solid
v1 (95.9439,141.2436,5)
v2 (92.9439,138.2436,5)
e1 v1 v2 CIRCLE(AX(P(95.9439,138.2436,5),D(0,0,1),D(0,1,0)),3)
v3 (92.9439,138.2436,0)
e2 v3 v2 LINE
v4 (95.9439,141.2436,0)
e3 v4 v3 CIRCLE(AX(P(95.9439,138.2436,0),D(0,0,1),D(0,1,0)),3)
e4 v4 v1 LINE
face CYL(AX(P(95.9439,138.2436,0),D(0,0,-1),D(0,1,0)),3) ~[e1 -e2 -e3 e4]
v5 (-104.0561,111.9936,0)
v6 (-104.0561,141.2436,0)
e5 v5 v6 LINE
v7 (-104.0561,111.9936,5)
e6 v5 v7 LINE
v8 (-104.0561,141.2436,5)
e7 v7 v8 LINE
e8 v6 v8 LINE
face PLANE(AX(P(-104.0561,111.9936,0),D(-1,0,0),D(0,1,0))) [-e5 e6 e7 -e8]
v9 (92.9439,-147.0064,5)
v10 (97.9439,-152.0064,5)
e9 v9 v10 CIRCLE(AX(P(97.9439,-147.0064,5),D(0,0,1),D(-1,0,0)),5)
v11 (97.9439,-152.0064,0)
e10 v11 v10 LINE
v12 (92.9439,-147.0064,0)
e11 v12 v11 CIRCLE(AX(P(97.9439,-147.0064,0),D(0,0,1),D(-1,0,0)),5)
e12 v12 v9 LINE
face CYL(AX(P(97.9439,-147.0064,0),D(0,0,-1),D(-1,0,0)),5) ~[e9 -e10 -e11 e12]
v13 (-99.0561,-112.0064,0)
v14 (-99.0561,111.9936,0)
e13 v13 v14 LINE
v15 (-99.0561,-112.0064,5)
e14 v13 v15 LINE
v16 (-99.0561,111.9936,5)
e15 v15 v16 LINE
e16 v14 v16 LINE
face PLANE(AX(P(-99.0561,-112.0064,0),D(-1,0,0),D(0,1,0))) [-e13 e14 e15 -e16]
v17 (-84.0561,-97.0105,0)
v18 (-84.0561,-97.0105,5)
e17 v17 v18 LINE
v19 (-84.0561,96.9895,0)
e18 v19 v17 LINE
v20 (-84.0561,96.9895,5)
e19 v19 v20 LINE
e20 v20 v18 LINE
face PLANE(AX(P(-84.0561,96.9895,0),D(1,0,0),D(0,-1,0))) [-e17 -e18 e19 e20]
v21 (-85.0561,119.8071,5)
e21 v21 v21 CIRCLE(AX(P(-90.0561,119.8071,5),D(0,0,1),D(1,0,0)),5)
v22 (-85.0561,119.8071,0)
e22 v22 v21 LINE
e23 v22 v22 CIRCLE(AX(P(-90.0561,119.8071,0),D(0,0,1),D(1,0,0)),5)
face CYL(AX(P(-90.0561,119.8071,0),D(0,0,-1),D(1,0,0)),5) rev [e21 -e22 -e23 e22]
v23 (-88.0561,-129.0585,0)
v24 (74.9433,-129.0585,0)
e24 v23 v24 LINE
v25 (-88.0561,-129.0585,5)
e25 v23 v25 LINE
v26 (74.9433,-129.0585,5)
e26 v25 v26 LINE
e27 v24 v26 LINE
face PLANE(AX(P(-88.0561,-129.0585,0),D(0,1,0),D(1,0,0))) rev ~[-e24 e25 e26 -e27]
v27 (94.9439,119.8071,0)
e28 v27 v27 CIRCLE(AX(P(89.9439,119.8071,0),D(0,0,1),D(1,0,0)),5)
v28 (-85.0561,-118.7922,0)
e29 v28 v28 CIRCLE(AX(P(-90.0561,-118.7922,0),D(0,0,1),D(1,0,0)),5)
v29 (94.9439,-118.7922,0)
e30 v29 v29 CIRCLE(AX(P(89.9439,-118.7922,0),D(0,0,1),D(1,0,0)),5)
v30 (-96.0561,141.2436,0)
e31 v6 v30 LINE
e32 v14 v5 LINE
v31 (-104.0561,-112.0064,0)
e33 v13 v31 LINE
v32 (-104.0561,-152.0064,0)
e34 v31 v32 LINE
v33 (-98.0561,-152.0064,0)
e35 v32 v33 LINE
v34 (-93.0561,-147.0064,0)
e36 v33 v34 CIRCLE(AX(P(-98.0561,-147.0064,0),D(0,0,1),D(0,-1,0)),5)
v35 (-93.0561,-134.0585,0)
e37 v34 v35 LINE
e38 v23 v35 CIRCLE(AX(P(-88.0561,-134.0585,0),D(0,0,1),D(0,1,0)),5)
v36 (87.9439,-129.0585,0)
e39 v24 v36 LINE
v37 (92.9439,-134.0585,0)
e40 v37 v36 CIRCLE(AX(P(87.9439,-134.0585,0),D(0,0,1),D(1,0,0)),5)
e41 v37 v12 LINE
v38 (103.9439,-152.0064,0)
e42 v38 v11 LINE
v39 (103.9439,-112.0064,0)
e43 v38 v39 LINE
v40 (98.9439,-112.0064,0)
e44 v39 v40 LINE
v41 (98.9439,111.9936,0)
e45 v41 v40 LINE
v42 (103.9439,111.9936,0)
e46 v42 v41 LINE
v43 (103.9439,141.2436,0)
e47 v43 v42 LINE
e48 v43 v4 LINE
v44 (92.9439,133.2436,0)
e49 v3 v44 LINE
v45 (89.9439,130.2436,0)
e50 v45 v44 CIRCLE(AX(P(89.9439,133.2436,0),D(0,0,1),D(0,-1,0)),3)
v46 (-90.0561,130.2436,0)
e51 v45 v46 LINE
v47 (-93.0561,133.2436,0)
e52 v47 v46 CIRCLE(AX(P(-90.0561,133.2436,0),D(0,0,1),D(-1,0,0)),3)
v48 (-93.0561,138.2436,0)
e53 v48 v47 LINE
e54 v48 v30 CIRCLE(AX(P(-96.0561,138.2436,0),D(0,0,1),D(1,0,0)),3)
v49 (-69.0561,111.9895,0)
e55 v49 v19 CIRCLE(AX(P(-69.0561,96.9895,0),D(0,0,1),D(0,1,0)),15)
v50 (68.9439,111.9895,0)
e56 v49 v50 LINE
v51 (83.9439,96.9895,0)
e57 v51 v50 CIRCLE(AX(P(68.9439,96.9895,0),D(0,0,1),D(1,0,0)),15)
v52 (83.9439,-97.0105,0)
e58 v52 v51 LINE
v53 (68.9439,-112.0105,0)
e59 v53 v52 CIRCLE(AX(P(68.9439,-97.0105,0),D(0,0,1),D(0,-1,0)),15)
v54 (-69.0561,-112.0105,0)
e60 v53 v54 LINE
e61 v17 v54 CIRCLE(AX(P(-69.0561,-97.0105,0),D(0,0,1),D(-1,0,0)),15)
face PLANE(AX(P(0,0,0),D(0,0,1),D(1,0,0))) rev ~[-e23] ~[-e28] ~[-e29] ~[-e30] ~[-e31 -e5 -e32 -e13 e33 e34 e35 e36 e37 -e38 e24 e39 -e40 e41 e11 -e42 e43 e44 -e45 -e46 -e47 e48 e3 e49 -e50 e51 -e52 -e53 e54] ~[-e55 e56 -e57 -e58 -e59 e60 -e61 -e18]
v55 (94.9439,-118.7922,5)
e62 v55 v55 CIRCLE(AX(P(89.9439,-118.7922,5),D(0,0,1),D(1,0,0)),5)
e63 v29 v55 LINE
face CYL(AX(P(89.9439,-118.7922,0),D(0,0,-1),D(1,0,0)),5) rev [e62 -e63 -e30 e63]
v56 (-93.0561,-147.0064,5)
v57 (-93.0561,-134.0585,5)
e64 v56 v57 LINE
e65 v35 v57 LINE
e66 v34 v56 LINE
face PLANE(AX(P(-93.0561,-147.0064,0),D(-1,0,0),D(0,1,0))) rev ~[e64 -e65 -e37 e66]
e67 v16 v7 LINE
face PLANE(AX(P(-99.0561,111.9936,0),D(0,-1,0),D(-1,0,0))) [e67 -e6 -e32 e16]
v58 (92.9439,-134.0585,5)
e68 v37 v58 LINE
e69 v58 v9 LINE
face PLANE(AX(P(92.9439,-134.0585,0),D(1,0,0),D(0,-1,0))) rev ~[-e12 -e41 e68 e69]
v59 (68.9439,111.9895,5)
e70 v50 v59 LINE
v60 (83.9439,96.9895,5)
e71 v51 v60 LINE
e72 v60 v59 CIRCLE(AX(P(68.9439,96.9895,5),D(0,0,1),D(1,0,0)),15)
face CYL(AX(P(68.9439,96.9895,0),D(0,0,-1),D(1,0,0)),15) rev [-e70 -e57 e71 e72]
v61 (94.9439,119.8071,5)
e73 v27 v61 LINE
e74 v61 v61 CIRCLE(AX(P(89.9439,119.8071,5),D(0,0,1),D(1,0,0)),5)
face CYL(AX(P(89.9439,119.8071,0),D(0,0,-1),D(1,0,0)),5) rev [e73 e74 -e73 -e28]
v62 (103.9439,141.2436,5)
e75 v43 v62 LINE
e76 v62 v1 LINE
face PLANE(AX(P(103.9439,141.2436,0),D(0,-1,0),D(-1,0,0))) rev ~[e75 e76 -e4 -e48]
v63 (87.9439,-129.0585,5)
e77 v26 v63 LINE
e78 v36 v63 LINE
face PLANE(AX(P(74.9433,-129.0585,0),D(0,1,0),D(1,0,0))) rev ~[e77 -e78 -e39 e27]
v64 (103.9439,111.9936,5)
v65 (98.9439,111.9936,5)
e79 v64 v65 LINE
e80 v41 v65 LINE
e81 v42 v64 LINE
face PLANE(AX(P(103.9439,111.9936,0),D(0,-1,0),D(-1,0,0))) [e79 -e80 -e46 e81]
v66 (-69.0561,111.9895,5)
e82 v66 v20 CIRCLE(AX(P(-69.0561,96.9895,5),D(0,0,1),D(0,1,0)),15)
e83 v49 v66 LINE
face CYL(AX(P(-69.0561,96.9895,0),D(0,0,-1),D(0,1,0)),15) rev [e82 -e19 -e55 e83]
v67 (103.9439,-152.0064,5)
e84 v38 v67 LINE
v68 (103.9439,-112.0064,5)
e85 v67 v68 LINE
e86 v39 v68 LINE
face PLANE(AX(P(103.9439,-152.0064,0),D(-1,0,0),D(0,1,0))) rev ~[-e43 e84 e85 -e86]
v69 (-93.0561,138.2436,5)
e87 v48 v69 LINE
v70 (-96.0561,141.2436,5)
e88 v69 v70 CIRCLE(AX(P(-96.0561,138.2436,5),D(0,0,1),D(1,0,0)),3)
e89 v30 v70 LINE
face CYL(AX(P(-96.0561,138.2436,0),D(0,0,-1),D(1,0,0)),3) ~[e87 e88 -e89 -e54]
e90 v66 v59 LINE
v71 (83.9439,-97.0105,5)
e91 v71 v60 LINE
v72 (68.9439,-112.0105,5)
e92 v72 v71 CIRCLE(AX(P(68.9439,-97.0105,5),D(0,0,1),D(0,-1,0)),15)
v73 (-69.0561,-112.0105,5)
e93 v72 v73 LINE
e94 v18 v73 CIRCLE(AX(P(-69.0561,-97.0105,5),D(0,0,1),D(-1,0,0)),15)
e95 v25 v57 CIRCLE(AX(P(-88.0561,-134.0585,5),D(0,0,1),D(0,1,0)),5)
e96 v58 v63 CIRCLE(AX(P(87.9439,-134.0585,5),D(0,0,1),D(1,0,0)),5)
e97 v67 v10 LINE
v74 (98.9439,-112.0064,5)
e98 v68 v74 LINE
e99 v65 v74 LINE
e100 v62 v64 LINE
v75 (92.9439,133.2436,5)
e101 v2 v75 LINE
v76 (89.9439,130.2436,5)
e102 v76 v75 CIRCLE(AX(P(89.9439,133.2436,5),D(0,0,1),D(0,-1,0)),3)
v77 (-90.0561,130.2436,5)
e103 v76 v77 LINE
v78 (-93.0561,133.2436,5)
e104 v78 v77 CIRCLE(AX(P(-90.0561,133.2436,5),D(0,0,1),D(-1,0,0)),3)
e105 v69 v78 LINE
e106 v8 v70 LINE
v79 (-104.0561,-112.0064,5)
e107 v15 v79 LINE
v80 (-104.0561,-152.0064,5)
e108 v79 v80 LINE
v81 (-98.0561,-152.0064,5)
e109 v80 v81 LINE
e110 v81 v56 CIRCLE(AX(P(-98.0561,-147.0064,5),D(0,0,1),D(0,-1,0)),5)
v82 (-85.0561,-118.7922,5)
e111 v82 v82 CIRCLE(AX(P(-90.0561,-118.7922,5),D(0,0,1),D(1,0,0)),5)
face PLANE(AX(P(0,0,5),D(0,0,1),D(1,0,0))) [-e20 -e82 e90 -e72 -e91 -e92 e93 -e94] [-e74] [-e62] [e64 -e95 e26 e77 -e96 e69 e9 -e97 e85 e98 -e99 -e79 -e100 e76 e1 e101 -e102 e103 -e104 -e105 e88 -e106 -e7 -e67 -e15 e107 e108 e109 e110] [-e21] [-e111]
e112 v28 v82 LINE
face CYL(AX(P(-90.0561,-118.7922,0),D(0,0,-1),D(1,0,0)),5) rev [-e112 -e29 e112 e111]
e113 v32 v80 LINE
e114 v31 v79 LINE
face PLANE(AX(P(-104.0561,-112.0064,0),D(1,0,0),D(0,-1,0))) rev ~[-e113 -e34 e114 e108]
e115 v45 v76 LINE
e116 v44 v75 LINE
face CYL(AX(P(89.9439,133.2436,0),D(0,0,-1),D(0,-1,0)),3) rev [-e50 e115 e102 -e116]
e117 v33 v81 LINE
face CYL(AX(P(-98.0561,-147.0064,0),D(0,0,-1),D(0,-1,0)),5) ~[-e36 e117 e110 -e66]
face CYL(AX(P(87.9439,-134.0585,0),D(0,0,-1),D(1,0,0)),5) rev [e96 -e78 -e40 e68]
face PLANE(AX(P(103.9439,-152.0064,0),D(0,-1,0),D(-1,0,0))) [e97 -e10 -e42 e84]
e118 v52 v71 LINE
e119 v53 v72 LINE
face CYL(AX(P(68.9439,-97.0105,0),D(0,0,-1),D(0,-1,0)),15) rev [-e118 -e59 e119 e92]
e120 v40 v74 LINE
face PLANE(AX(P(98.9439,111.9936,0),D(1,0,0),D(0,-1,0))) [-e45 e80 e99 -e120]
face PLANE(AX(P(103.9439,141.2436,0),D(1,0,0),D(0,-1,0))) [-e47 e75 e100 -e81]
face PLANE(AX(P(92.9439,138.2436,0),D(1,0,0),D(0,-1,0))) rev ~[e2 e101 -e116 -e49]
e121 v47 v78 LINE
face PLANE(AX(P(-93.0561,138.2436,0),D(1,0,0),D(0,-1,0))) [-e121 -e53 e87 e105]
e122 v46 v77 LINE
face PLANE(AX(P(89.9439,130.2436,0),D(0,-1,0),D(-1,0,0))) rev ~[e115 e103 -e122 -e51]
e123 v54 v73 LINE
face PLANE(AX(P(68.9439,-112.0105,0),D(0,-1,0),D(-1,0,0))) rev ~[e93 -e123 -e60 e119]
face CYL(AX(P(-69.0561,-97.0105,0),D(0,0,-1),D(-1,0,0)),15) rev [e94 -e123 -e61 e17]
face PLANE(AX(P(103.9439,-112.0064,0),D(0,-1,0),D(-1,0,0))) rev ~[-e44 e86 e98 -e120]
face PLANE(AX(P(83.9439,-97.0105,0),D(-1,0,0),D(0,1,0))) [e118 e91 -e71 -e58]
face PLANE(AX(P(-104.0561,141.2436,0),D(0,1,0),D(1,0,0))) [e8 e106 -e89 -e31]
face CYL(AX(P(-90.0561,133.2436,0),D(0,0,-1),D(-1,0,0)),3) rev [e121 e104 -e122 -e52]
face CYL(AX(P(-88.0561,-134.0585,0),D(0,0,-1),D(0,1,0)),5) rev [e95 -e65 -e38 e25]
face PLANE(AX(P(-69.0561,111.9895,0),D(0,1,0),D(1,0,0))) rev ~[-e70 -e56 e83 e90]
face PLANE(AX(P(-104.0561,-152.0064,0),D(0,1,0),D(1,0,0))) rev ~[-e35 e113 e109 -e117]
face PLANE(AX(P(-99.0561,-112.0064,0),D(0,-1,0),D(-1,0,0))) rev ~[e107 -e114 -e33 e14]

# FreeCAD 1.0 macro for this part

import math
import FreeCAD as App
import Part
import Sketcher
Q = App.Units.Quantity

doc = App.newDocument("Part")
params = doc.addObject("Spreadsheet::Sheet", "Params")
for row, (alias, value) in enumerate([
    ("sketch1_diameter", "10 mm"),
    ("sketch1_radius", "3 mm"),
    ("sketch1_radius2", "15 mm"),
    ("sketch1_width", "5 mm"),
    ("sketch1_width2", "8 mm"),
    ("pad1_length", "5 mm"),
], start=1):
    params.set(f"A{row}", alias)
    params.set(f"B{row}", "=" + value)
    params.setAlias(f"B{row}", alias)

body = doc.addObject("PartDesign::Body", "Body")

# Sketch on XY plane
sketch1 = body.newObject("Sketcher::SketchObject", "Sketch")
sketch1.AttachmentSupport = (doc.getObject("XY_Plane"), [""])
sketch1.MapMode = "FlatFace"
sketch1.addGeometry(Part.LineSegment(App.Vector(98.9, -112, 0), App.Vector(98.9, 112, 0)), False)
sketch1.addGeometry(Part.LineSegment(App.Vector(98.9, 112, 0), App.Vector(103.9, 112, 0)), False)
sketch1.addGeometry(Part.LineSegment(App.Vector(103.9, 112, 0), App.Vector(103.9, 141.2, 0)), False)
sketch1.addGeometry(Part.LineSegment(App.Vector(103.9, 141.2, 0), App.Vector(95.9, 141.2, 0)), False)
sketch1.addGeometry(Part.ArcOfCircle(Part.Circle(App.Vector(95.9, 138.2, 0), App.Vector(0, 0, 1), 3), math.radians(90), math.radians(180)), False)
sketch1.addGeometry(Part.LineSegment(App.Vector(92.9, 138.2, 0), App.Vector(92.9, 133.2, 0)), False)
sketch1.addGeometry(Part.ArcOfCircle(Part.Circle(App.Vector(89.9, 133.2, 0), App.Vector(0, 0, 1), 3), math.radians(-90), math.radians(0)), False)
sketch1.addGeometry(Part.LineSegment(App.Vector(89.9, 130.2, 0), App.Vector(-90.1, 130.2, 0)), False)
sketch1.addGeometry(Part.ArcOfCircle(Part.Circle(App.Vector(-90.1, 133.2, 0), App.Vector(0, 0, 1), 3), math.radians(180), math.radians(270)), False)
sketch1.addGeometry(Part.LineSegment(App.Vector(-93.1, 133.2, 0), App.Vector(-93.1, 138.2, 0)), False)
sketch1.addGeometry(Part.ArcOfCircle(Part.Circle(App.Vector(-96.1, 138.2, 0), App.Vector(0, 0, 1), 3), math.radians(0), math.radians(90)), False)
sketch1.addGeometry(Part.LineSegment(App.Vector(-96.1, 141.2, 0), App.Vector(-104.1, 141.2, 0)), False)
sketch1.addGeometry(Part.LineSegment(App.Vector(-104.1, 141.2, 0), App.Vector(-104.1, 112, 0)), False)
sketch1.addGeometry(Part.LineSegment(App.Vector(-104.1, 112, 0), App.Vector(-99.1, 112, 0)), False)
sketch1.addGeometry(Part.LineSegment(App.Vector(-99.1, 112, 0), App.Vector(-99.1, -112, 0)), False)
sketch1.addGeometry(Part.LineSegment(App.Vector(-99.1, -112, 0), App.Vector(-104.1, -112, 0)), False)
sketch1.addGeometry(Part.LineSegment(App.Vector(-104.1, -112, 0), App.Vector(-104.1, -152, 0)), False)
sketch1.addGeometry(Part.LineSegment(App.Vector(-104.1, -152, 0), App.Vector(-98.1, -152, 0)), False)
sketch1.addGeometry(Part.ArcOfCircle(Part.Circle(App.Vector(-98.1, -147, 0), App.Vector(0, 0, 1), 5), math.radians(-90), math.radians(0)), False)
sketch1.addGeometry(Part.LineSegment(App.Vector(-93.1, -147, 0), App.Vector(-93.1, -134.1, 0)), False)
sketch1.addGeometry(Part.ArcOfCircle(Part.Circle(App.Vector(-88.1, -134.1, 0), App.Vector(0, 0, 1), 5), math.radians(90), math.radians(180)), False)
sketch1.addGeometry(Part.LineSegment(App.Vector(-88.1, -129.1, 0), App.Vector(87.9, -129.1, 0)), False)
sketch1.addGeometry(Part.ArcOfCircle(Part.Circle(App.Vector(87.9, -134.1, 0), App.Vector(0, 0, 1), 5), math.radians(0), math.radians(90)), False)
sketch1.addGeometry(Part.LineSegment(App.Vector(92.9, -134.1, 0), App.Vector(92.9, -147, 0)), False)
sketch1.addGeometry(Part.ArcOfCircle(Part.Circle(App.Vector(97.9, -147, 0), App.Vector(0, 0, 1), 5), math.radians(180), math.radians(270)), False)
sketch1.addGeometry(Part.LineSegment(App.Vector(97.9, -152, 0), App.Vector(103.9, -152, 0)), False)
sketch1.addGeometry(Part.LineSegment(App.Vector(103.9, -152, 0), App.Vector(103.9, -112, 0)), False)
sketch1.addGeometry(Part.LineSegment(App.Vector(103.9, -112, 0), App.Vector(98.9, -112, 0)), False)
sketch1.addGeometry(Part.Circle(App.Vector(-90.1, -118.8, 0), App.Vector(0, 0, 1), 5), False)
sketch1.addGeometry(Part.Circle(App.Vector(89.9, -118.8, 0), App.Vector(0, 0, 1), 5), False)
sketch1.addGeometry(Part.Circle(App.Vector(-90.1, 119.8, 0), App.Vector(0, 0, 1), 5), False)
sketch1.addGeometry(Part.LineSegment(App.Vector(83.9, 97, 0), App.Vector(83.9, -97, 0)), False)
sketch1.addGeometry(Part.ArcOfCircle(Part.Circle(App.Vector(68.9, -97, 0), App.Vector(0, 0, 1), 15), math.radians(-90), math.radians(0)), False)
sketch1.addGeometry(Part.LineSegment(App.Vector(68.9, -112, 0), App.Vector(-69.1, -112, 0)), False)
sketch1.addGeometry(Part.ArcOfCircle(Part.Circle(App.Vector(-69.1, -97, 0), App.Vector(0, 0, 1), 15), math.radians(180), math.radians(270)), False)
sketch1.addGeometry(Part.LineSegment(App.Vector(-84.1, -97, 0), App.Vector(-84.1, 97, 0)), False)
sketch1.addGeometry(Part.ArcOfCircle(Part.Circle(App.Vector(-69.1, 97, 0), App.Vector(0, 0, 1), 15), math.radians(90), math.radians(180)), False)
sketch1.addGeometry(Part.LineSegment(App.Vector(-69.1, 112, 0), App.Vector(68.9, 112, 0)), False)
sketch1.addGeometry(Part.ArcOfCircle(Part.Circle(App.Vector(68.9, 97, 0), App.Vector(0, 0, 1), 15), math.radians(0), math.radians(90)), False)
sketch1.addGeometry(Part.Circle(App.Vector(89.9, 119.8, 0), App.Vector(0, 0, 1), 5), False)
sketch1.addConstraint(Sketcher.Constraint("Coincident", 0, 2, 1, 1))
sketch1.addConstraint(Sketcher.Constraint("Coincident", 1, 2, 2, 1))
sketch1.addConstraint(Sketcher.Constraint("Coincident", 2, 2, 3, 1))
sketch1.addConstraint(Sketcher.Constraint("Tangent", 3, 2, 4, 1))
sketch1.addConstraint(Sketcher.Constraint("Tangent", 4, 2, 5, 1))
sketch1.addConstraint(Sketcher.Constraint("Tangent", 5, 2, 6, 2))
sketch1.addConstraint(Sketcher.Constraint("Tangent", 6, 1, 7, 1))
sketch1.addConstraint(Sketcher.Constraint("Tangent", 7, 2, 8, 2))
sketch1.addConstraint(Sketcher.Constraint("Tangent", 8, 1, 9, 1))
sketch1.addConstraint(Sketcher.Constraint("Tangent", 9, 2, 10, 1))
sketch1.addConstraint(Sketcher.Constraint("Tangent", 10, 2, 11, 1))
sketch1.addConstraint(Sketcher.Constraint("Coincident", 11, 2, 12, 1))
sketch1.addConstraint(Sketcher.Constraint("Coincident", 12, 2, 13, 1))
sketch1.addConstraint(Sketcher.Constraint("Coincident", 13, 2, 14, 1))
sketch1.addConstraint(Sketcher.Constraint("Coincident", 14, 2, 15, 1))
sketch1.addConstraint(Sketcher.Constraint("Coincident", 15, 2, 16, 1))
sketch1.addConstraint(Sketcher.Constraint("Coincident", 16, 2, 17, 1))
sketch1.addConstraint(Sketcher.Constraint("Tangent", 17, 2, 18, 1))
sketch1.addConstraint(Sketcher.Constraint("Tangent", 18, 2, 19, 1))
sketch1.addConstraint(Sketcher.Constraint("Tangent", 19, 2, 20, 2))
sketch1.addConstraint(Sketcher.Constraint("Tangent", 20, 1, 21, 1))
sketch1.addConstraint(Sketcher.Constraint("Tangent", 21, 2, 22, 2))
sketch1.addConstraint(Sketcher.Constraint("Tangent", 22, 1, 23, 1))
sketch1.addConstraint(Sketcher.Constraint("Tangent", 23, 2, 24, 1))
sketch1.addConstraint(Sketcher.Constraint("Tangent", 24, 2, 25, 1))
sketch1.addConstraint(Sketcher.Constraint("Coincident", 25, 2, 26, 1))
sketch1.addConstraint(Sketcher.Constraint("Coincident", 26, 2, 27, 1))
sketch1.addConstraint(Sketcher.Constraint("Coincident", 27, 2, 0, 1))
sketch1.addConstraint(Sketcher.Constraint("Tangent", 31, 2, 32, 2))
sketch1.addConstraint(Sketcher.Constraint("Tangent", 32, 1, 33, 1))
sketch1.addConstraint(Sketcher.Constraint("Tangent", 33, 2, 34, 2))
sketch1.addConstraint(Sketcher.Constraint("Tangent", 34, 1, 35, 1))
sketch1.addConstraint(Sketcher.Constraint("Tangent", 35, 2, 36, 2))
sketch1.addConstraint(Sketcher.Constraint("Tangent", 36, 1, 37, 1))
sketch1.addConstraint(Sketcher.Constraint("Tangent", 37, 2, 38, 2))
sketch1.addConstraint(Sketcher.Constraint("Tangent", 38, 1, 31, 1))
sketch1.addConstraint(Sketcher.Constraint("Vertical", 0))
sketch1.addConstraint(Sketcher.Constraint("Horizontal", 1))
sketch1.addConstraint(Sketcher.Constraint("Vertical", 2))
sketch1.addConstraint(Sketcher.Constraint("Horizontal", 3))
sketch1.addConstraint(Sketcher.Constraint("Vertical", 5))
sketch1.addConstraint(Sketcher.Constraint("Horizontal", 7))
sketch1.addConstraint(Sketcher.Constraint("Vertical", 9))
sketch1.addConstraint(Sketcher.Constraint("Horizontal", 11))
sketch1.addConstraint(Sketcher.Constraint("Vertical", 12))
sketch1.addConstraint(Sketcher.Constraint("Horizontal", 13))
sketch1.addConstraint(Sketcher.Constraint("Vertical", 14))
sketch1.addConstraint(Sketcher.Constraint("Horizontal", 15))
sketch1.addConstraint(Sketcher.Constraint("Vertical", 16))
sketch1.addConstraint(Sketcher.Constraint("Horizontal", 17))
sketch1.addConstraint(Sketcher.Constraint("Vertical", 19))
sketch1.addConstraint(Sketcher.Constraint("Horizontal", 21))
sketch1.addConstraint(Sketcher.Constraint("Vertical", 23))
sketch1.addConstraint(Sketcher.Constraint("Horizontal", 25))
sketch1.addConstraint(Sketcher.Constraint("Vertical", 26))
sketch1.addConstraint(Sketcher.Constraint("Horizontal", 27))
sketch1.addConstraint(Sketcher.Constraint("Vertical", 31))
sketch1.addConstraint(Sketcher.Constraint("Horizontal", 33))
sketch1.addConstraint(Sketcher.Constraint("Vertical", 35))
sketch1.addConstraint(Sketcher.Constraint("Horizontal", 37))
sketch1.addConstraint(Sketcher.Constraint("Equal", 4, 6))
sketch1.addConstraint(Sketcher.Constraint("Equal", 6, 8))
sketch1.addConstraint(Sketcher.Constraint("Equal", 8, 10))
sketch1.addConstraint(Sketcher.Constraint("Equal", 18, 20))
sketch1.addConstraint(Sketcher.Constraint("Equal", 20, 22))
sketch1.addConstraint(Sketcher.Constraint("Equal", 22, 24))
sketch1.addConstraint(Sketcher.Constraint("Equal", 24, 28))
sketch1.addConstraint(Sketcher.Constraint("Equal", 28, 29))
sketch1.addConstraint(Sketcher.Constraint("Equal", 29, 30))
sketch1.addConstraint(Sketcher.Constraint("Equal", 32, 34))
sketch1.addConstraint(Sketcher.Constraint("Equal", 34, 36))
sketch1.addConstraint(Sketcher.Constraint("Equal", 36, 38))
sketch1.addConstraint(Sketcher.Constraint("Equal", 30, 39))
sketch1.addConstraint(Sketcher.Constraint("Horizontal", 4, 3, 10, 3))
sketch1.addConstraint(Sketcher.Constraint("Horizontal", 18, 3, 24, 3))
sketch1.addConstraint(Sketcher.Constraint("Horizontal", 28, 3, 29, 3))
sketch1.addConstraint(Sketcher.Constraint("Horizontal", 30, 3, 39, 3))
sketch1.addConstraint(Sketcher.Constraint("Horizontal", 1, 2, 12, 2))
sketch1.addConstraint(Sketcher.Constraint("Horizontal", 15, 2, 26, 2))
sketch1.addConstraint(Sketcher.Constraint("Vertical", 8, 3, 28, 3))
sketch1.addConstraint(Sketcher.Constraint("Vertical", 6, 3, 29, 3))
sketch1.addConstraint(Sketcher.Constraint("Vertical", 28, 3, 30, 3))
sketch1.addConstraint(Sketcher.Constraint("Vertical", 29, 3, 39, 3))
sketch1.addConstraint(Sketcher.Constraint("Vertical", 12, 2, 15, 2))
sketch1.addConstraint(Sketcher.Constraint("Vertical", 9, 2, 18, 2))
sketch1.addConstraint(Sketcher.Constraint("Vertical", 5, 2, 22, 1))
sketch1.addConstraint(Sketcher.Constraint("Vertical", 2, 2, 25, 2))
sketch1.addConstraint(Sketcher.Constraint("Equal", 3, 11))
sketch1.addConstraint(Sketcher.Constraint("Equal", 1, 13))
sketch1.addConstraint(Sketcher.Constraint("Equal", 27, 5))
sketch1.addConstraint(Sketcher.Constraint("Diameter", 28, Q("10 mm")))
sketch1.addConstraint(Sketcher.Constraint("Radius", 4, Q("3 mm")))
sketch1.addConstraint(Sketcher.Constraint("Radius", 32, Q("15 mm")))
sketch1.addConstraint(Sketcher.Constraint("DistanceX", 1, 1, 1, 2, Q("5 mm")))
sketch1.addConstraint(Sketcher.Constraint("DistanceX", 3, 2, 3, 1, Q("8 mm")))
sketch1.addConstraint(Sketcher.Constraint("DistanceY", 0, 1, 0, 2, Q("224 mm")))
sketch1.addConstraint(Sketcher.Constraint("DistanceY", 16, 2, 16, 1, Q("40 mm")))
sketch1.addConstraint(Sketcher.Constraint("DistanceX", 31, 2, 27, 2, Q("15 mm")))
sketch1.addConstraint(Sketcher.Constraint("DistanceX", 14, 2, 34, 1, Q("15 mm")))
sketch1.addConstraint(Sketcher.Constraint("DistanceX", 7, 2, 7, 1, Q("180 mm")))
sketch1.addConstraint(Sketcher.Constraint("DistanceY", 31, 2, 31, 1, Q("194 mm")))
sketch1.addConstraint(Sketcher.Constraint("DistanceY", 2, 1, 2, 2, Q("29.25 mm")))
sketch1.addConstraint(Sketcher.Constraint("DistanceY", 19, 1, 19, 2, Q("12.948 mm")))
sketch1.addConstraint(Sketcher.Constraint("DistanceX", -1, 1, 4, 3, Q("95.944 mm")))
sketch1.addConstraint(Sketcher.Constraint("DistanceY", -1, 1, 30, 3, Q("119.807 mm")))
sketch1.addConstraint(Sketcher.Constraint("DistanceY", 22, 3, 32, 3, Q("37.048 mm")))
sketch1.addConstraint(Sketcher.Constraint("DistanceY", -1, 1, 4, 3, Q("138.2436 mm")))
sketch1.addConstraint(Sketcher.Constraint("DistanceY", 28, 3, -1, 1, Q("118.7922 mm")))
sketch1.setExpression("Constraints[90]", "Params.sketch1_diameter")
sketch1.setExpression("Constraints[91]", "Params.sketch1_radius")
sketch1.setExpression("Constraints[92]", "Params.sketch1_radius2")
sketch1.setExpression("Constraints[93]", "Params.sketch1_width")
sketch1.setExpression("Constraints[94]", "Params.sketch1_width2")
pad1 = body.newObject("PartDesign::Pad", "Pad")
pad1.Profile = sketch1
pad1.setExpression("Length", "Params.pad1_length")

doc.recompute()
